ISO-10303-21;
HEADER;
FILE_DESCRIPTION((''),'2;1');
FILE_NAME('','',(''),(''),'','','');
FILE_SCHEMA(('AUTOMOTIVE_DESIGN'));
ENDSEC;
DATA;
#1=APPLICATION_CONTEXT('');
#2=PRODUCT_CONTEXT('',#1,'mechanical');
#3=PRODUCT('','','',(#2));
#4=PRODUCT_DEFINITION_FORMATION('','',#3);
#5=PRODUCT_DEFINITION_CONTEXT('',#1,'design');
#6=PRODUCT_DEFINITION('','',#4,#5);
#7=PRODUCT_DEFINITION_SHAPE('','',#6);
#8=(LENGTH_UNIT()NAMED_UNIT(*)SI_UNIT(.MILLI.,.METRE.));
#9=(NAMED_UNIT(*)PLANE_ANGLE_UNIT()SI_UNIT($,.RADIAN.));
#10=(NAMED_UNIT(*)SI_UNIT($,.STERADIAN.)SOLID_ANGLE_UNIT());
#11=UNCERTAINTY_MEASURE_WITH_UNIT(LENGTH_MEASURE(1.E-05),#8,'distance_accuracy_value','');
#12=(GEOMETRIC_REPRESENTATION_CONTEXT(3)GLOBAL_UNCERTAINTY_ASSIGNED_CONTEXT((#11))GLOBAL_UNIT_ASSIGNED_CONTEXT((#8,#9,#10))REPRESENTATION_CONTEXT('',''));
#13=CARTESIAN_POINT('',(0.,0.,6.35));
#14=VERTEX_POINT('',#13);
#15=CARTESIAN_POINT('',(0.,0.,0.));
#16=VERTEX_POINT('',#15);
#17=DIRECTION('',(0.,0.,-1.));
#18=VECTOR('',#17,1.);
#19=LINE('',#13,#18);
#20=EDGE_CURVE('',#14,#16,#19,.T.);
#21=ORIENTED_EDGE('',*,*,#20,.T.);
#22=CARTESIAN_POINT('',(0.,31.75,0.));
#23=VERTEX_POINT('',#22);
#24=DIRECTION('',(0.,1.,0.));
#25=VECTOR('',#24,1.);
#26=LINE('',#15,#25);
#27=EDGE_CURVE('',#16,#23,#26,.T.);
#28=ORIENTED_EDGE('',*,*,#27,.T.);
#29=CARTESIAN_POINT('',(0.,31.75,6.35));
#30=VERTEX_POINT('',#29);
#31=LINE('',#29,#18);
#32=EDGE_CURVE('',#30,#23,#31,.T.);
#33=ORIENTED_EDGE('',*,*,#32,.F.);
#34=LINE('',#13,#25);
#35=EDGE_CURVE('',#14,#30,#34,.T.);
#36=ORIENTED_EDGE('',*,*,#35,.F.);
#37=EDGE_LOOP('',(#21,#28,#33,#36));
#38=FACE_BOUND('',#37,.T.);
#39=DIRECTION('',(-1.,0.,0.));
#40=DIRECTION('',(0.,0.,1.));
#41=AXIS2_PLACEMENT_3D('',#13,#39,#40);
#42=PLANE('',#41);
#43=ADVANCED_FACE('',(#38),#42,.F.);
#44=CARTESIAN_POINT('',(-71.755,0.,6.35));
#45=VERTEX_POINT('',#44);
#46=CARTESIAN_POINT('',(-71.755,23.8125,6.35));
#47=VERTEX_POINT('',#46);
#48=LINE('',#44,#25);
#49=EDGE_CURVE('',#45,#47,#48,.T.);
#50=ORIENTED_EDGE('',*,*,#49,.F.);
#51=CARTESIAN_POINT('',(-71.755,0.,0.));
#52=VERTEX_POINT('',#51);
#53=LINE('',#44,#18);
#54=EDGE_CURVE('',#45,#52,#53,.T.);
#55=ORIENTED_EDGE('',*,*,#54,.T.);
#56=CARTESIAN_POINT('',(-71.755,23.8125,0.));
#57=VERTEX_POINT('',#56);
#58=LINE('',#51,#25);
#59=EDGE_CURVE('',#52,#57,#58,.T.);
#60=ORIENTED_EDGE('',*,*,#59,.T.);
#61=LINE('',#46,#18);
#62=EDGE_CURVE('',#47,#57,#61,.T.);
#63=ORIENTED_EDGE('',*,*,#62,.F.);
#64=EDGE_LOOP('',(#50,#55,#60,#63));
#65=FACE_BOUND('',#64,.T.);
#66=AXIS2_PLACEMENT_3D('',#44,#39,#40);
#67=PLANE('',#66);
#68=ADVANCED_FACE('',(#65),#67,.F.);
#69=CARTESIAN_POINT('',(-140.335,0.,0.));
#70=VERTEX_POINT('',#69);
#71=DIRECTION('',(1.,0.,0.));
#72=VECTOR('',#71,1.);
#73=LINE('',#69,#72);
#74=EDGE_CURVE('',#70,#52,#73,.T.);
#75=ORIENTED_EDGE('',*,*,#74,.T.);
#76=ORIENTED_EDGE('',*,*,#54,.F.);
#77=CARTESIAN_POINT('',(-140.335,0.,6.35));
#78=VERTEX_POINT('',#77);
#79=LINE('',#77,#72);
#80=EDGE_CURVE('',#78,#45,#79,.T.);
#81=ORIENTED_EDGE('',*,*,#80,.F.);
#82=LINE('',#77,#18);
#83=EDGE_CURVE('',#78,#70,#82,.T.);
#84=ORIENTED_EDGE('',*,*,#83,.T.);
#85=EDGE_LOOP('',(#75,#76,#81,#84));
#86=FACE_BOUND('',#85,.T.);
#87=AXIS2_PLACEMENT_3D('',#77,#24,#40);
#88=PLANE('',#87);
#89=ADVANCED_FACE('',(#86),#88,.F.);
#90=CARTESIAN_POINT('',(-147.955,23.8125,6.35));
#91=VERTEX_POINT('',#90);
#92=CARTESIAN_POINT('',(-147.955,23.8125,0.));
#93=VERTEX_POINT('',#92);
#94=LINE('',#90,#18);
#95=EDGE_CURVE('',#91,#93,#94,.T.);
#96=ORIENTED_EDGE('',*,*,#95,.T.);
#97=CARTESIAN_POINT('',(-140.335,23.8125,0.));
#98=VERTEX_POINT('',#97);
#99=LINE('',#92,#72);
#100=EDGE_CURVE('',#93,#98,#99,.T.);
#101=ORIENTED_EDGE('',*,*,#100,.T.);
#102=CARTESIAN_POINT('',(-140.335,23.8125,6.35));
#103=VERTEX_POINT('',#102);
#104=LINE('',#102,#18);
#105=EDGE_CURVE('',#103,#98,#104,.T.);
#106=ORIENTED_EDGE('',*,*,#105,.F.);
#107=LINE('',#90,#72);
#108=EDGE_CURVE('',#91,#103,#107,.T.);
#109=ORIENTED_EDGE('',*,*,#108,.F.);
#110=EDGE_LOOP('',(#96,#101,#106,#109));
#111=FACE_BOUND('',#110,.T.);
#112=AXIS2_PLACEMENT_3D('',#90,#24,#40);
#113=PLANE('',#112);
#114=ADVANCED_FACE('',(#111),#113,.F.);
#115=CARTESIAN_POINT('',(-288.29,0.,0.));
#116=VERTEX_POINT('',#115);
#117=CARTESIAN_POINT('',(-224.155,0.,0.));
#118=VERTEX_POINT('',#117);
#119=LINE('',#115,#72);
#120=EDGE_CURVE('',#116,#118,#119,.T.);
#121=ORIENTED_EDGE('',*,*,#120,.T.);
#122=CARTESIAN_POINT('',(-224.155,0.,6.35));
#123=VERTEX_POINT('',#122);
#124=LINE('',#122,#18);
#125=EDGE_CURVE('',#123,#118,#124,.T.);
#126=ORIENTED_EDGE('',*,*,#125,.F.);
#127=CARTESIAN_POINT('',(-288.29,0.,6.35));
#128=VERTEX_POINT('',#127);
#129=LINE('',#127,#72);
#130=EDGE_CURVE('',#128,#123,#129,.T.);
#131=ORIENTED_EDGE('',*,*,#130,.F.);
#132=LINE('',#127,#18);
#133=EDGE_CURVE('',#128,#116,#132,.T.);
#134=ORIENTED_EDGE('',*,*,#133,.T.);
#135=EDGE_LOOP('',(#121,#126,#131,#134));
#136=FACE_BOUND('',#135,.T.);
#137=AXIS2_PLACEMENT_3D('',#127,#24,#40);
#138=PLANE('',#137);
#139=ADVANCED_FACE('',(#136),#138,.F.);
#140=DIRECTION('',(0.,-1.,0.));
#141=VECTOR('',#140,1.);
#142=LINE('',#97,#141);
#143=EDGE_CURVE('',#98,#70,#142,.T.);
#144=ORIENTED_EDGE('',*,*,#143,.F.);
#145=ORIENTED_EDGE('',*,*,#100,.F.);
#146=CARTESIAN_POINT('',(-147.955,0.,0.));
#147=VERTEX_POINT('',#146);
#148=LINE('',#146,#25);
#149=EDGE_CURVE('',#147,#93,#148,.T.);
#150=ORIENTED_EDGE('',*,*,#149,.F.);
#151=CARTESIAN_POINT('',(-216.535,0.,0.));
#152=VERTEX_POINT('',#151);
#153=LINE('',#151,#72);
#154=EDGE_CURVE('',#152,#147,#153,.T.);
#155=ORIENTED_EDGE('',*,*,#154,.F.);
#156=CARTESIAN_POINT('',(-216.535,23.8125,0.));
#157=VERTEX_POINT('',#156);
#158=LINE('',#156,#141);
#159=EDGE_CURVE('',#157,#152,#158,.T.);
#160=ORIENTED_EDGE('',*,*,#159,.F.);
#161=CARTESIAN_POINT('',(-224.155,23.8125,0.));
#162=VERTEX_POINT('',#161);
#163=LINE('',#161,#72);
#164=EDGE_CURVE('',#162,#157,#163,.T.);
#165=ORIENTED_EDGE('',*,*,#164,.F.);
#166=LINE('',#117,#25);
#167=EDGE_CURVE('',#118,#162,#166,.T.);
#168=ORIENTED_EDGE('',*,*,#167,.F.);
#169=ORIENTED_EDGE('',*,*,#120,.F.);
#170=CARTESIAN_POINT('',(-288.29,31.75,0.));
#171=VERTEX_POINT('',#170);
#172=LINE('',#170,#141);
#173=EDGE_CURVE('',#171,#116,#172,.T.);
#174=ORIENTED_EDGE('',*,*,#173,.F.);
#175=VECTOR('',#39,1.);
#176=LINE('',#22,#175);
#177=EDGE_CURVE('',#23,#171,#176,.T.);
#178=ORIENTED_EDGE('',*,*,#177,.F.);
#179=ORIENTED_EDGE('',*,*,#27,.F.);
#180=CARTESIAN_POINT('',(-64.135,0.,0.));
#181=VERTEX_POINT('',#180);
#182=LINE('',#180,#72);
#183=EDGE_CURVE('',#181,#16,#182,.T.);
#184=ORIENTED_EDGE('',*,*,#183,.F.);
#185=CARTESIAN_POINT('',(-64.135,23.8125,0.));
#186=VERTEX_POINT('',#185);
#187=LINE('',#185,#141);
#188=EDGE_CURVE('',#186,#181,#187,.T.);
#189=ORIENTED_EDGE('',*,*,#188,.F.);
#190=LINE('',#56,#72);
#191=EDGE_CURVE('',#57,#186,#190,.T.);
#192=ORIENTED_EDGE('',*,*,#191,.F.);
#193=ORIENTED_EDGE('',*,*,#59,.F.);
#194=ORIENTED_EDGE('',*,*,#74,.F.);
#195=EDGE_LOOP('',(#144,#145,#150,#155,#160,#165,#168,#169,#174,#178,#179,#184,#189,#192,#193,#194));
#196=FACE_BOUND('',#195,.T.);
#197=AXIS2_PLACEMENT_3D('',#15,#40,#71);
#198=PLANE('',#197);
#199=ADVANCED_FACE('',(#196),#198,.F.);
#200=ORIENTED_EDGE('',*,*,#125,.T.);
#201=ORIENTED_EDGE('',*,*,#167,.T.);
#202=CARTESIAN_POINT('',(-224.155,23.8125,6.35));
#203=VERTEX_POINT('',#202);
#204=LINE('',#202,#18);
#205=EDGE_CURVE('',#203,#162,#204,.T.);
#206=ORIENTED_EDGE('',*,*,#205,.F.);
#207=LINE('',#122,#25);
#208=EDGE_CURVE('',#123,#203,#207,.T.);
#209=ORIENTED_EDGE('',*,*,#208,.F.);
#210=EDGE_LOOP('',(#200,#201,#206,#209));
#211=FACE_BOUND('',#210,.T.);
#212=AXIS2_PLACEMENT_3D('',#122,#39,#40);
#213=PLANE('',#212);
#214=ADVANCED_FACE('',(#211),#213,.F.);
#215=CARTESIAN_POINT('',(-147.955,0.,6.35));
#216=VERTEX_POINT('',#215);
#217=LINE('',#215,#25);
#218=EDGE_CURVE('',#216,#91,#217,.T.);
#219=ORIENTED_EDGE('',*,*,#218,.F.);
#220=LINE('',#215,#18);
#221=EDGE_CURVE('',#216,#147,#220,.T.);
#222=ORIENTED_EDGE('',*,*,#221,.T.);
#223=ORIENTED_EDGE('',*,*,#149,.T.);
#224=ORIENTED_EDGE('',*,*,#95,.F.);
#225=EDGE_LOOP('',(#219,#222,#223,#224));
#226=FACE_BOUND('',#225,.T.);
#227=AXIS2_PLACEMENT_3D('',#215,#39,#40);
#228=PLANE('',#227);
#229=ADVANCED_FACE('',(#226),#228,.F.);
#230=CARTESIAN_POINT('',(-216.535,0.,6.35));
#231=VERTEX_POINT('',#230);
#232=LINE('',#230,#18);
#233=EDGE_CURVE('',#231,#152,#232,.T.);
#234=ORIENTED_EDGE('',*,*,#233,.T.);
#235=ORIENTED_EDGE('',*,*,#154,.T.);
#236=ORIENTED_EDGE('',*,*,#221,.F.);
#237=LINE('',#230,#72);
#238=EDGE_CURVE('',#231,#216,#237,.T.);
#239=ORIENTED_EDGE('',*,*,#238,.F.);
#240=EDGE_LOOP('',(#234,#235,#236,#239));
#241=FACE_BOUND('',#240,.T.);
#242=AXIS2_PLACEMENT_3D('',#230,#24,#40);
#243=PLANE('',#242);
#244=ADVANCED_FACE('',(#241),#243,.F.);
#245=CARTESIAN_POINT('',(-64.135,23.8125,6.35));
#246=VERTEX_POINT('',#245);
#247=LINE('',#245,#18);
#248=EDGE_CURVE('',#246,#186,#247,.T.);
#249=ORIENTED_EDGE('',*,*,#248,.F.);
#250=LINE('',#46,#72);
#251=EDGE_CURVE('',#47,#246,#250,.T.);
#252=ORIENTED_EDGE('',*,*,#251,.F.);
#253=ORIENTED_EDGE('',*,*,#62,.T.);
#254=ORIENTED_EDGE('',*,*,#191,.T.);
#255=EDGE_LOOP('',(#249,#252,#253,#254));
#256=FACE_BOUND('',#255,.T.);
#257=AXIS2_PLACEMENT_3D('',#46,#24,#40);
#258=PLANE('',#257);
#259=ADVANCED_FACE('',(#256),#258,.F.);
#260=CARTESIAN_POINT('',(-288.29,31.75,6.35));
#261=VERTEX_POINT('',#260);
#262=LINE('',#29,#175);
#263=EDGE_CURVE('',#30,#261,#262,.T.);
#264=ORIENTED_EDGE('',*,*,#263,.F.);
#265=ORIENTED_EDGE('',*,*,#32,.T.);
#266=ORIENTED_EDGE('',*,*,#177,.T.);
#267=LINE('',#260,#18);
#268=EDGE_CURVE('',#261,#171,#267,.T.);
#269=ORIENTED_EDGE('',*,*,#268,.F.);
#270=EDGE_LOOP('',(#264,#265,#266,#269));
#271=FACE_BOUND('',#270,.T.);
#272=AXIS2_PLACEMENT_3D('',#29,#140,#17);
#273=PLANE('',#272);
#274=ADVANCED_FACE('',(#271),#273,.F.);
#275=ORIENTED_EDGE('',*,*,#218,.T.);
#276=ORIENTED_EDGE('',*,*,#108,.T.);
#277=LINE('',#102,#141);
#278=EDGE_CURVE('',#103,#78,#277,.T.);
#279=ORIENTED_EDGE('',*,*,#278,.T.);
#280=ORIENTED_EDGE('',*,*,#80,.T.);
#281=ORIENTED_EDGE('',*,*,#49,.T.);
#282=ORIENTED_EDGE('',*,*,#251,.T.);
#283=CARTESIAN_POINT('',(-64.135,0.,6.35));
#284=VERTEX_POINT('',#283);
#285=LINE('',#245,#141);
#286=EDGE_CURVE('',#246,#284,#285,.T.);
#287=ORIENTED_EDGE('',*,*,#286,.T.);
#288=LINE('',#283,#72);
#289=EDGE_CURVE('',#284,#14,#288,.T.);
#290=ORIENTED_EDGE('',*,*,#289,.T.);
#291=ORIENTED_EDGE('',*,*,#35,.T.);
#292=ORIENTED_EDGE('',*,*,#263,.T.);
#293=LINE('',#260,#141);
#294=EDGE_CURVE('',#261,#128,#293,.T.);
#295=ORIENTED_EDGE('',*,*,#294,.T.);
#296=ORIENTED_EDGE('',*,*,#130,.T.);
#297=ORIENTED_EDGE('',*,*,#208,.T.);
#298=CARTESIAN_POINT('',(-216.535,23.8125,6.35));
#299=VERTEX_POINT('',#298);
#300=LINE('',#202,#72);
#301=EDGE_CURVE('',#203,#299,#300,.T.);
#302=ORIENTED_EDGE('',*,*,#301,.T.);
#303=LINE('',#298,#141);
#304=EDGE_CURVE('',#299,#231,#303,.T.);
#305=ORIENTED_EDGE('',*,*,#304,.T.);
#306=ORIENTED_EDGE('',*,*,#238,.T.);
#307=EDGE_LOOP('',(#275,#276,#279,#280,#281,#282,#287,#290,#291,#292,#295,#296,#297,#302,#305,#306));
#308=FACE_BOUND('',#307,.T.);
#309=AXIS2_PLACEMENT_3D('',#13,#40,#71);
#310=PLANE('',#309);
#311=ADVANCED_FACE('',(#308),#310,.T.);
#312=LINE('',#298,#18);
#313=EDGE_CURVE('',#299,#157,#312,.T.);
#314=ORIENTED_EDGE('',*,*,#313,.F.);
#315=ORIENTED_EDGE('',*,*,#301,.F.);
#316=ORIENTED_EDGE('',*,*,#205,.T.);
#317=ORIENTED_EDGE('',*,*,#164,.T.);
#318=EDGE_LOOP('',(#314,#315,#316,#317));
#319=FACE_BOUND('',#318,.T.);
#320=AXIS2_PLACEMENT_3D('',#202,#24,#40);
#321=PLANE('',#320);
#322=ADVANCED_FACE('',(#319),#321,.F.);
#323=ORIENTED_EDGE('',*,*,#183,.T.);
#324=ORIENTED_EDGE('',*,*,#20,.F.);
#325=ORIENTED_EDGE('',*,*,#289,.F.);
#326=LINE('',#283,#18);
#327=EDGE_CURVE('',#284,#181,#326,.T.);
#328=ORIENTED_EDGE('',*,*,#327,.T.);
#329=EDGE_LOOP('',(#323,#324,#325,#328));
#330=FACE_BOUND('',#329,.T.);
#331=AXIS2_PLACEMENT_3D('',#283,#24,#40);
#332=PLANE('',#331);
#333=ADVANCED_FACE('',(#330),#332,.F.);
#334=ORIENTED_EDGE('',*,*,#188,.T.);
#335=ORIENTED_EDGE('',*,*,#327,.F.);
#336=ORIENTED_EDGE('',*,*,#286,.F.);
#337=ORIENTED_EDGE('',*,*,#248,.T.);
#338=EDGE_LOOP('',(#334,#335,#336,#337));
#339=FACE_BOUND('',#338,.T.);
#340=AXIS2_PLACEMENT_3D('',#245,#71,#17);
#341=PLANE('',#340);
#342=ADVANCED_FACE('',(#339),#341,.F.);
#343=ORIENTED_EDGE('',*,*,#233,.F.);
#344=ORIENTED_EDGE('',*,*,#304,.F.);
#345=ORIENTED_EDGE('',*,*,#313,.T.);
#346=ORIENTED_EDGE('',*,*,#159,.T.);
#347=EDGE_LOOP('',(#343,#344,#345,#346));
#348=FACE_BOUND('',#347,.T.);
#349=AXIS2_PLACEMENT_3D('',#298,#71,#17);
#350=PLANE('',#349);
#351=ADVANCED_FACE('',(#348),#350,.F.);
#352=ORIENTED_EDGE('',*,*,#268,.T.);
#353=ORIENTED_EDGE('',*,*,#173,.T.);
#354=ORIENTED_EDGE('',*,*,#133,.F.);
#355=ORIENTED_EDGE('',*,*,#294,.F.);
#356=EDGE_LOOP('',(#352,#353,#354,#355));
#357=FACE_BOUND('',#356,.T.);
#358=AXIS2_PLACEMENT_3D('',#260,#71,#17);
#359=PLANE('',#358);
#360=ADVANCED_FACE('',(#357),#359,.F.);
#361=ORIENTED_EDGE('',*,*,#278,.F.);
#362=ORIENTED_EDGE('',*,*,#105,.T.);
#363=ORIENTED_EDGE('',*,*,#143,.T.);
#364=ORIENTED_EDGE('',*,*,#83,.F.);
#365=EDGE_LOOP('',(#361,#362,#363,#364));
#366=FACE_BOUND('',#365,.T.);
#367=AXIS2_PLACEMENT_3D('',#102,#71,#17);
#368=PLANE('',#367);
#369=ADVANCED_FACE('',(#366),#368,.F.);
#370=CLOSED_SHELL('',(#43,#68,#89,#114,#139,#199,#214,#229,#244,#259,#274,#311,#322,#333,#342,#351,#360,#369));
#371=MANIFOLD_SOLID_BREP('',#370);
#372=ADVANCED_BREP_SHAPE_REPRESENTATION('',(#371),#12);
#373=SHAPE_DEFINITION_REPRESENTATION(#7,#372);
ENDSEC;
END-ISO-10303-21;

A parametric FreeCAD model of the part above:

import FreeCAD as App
import Part
import Sketcher
Q = App.Units.Quantity


def add_polygon(sketch, points):
    """Adds a closed chain of lines whose ends are joined by coincident constraints."""
    first, n = sketch.GeometryCount, len(points)
    for a, b in zip(points, points[1:] + points[:1]):
        sketch.addGeometry(Part.LineSegment(App.Vector(*a, 0), App.Vector(*b, 0)), False)
    for i in range(n):
        sketch.addConstraint(Sketcher.Constraint("Coincident", first + i, 2, first + (i + 1) % n, 1))

doc = App.newDocument("Part")
params = doc.addObject("Spreadsheet::Sheet", "Params")
for row, (alias, value) in enumerate([
    ("sketch1_width", "2.7 in"),
    ("sketch1_width2", "0.3 in"),
    ("sketch1_width3", "11.35 in"),
    ("sketch1_height", "1.25 in"),
    ("sketch1_height2", "0.9375 in"),
    ("pad1_length", "0.25 in"),
], start=1):
    params.set(f"A{row}", alias)
    params.set(f"B{row}", "=" + value)
    params.setAlias(f"B{row}", alias)

body = doc.addObject("PartDesign::Body", "Body")

# Sketch on XY plane
sketch1 = body.newObject("Sketcher::SketchObject", "Sketch")
sketch1.AttachmentSupport = (doc.getObject("XY_Plane"), [""])
sketch1.MapMode = "FlatFace"
add_polygon(sketch1, [(-216.535, 0), (-147.955, 0), (-147.955, 23.8125), (-140.335, 23.8125), (-140.335, 0), (-71.755, 0), (-71.755, 23.8125), (-64.135, 23.8125), (-64.135, 0), (0, 0), (0, 31.75), (-288.29, 31.75), (-288.29, 0), (-224.155, 0), (-224.155, 23.8125), (-216.535, 23.8125)])  # lines 0-15
sketch1.addConstraint(Sketcher.Constraint("Horizontal", 0))
sketch1.addConstraint(Sketcher.Constraint("Vertical", 1))
sketch1.addConstraint(Sketcher.Constraint("Horizontal", 2))
sketch1.addConstraint(Sketcher.Constraint("Vertical", 3))
sketch1.addConstraint(Sketcher.Constraint("Horizontal", 4))
sketch1.addConstraint(Sketcher.Constraint("Vertical", 5))
sketch1.addConstraint(Sketcher.Constraint("Horizontal", 6))
sketch1.addConstraint(Sketcher.Constraint("Vertical", 7))
sketch1.addConstraint(Sketcher.Constraint("Horizontal", 8))
sketch1.addConstraint(Sketcher.Constraint("Vertical", 9))
sketch1.addConstraint(Sketcher.Constraint("Horizontal", 10))
sketch1.addConstraint(Sketcher.Constraint("Vertical", 11))
sketch1.addConstraint(Sketcher.Constraint("Horizontal", 12))
sketch1.addConstraint(Sketcher.Constraint("Vertical", 13))
sketch1.addConstraint(Sketcher.Constraint("Horizontal", 14))
sketch1.addConstraint(Sketcher.Constraint("Vertical", 15))
sketch1.addConstraint(Sketcher.Constraint("Coincident", 8, 2, -1, 1))
sketch1.addConstraint(Sketcher.Constraint("PointOnObject", 0, 2, -1))
sketch1.addConstraint(Sketcher.Constraint("PointOnObject", 3, 2, -1))
sketch1.addConstraint(Sketcher.Constraint("PointOnObject", 11, 2, -1))
sketch1.addConstraint(Sketcher.Constraint("Horizontal", 2, 2, 5, 2))
sketch1.addConstraint(Sketcher.Constraint("Horizontal", 6, 2, 13, 2))
sketch1.addConstraint(Sketcher.Constraint("Equal", 0, 4))
sketch1.addConstraint(Sketcher.Constraint("Equal", 2, 6))
sketch1.addConstraint(Sketcher.Constraint("Equal", 8, 12))
sketch1.addConstraint(Sketcher.Constraint("Equal", 6, 14))
sketch1.addConstraint(Sketcher.Constraint("DistanceX", 0, 1, 0, 2, Q("2.7 in")))
sketch1.addConstraint(Sketcher.Constraint("DistanceX", 2, 1, 2, 2, Q("0.3 in")))
sketch1.addConstraint(Sketcher.Constraint("DistanceX", 10, 2, 10, 1, Q("11.35 in")))
sketch1.addConstraint(Sketcher.Constraint("DistanceY", 9, 1, 9, 2, Q("1.25 in")))
sketch1.addConstraint(Sketcher.Constraint("DistanceY", 1, 1, 1, 2, Q("0.9375 in")))
sketch1.setExpression("Constraints[42]", "Params.sketch1_width")
sketch1.setExpression("Constraints[43]", "Params.sketch1_width2")
sketch1.setExpression("Constraints[44]", "Params.sketch1_width3")
sketch1.setExpression("Constraints[45]", "Params.sketch1_height")
sketch1.setExpression("Constraints[46]", "Params.sketch1_height2")
pad1 = body.newObject("PartDesign::Pad", "Pad")
pad1.Profile = sketch1
pad1.setExpression("Length", "Params.pad1_length")

doc.recompute()
